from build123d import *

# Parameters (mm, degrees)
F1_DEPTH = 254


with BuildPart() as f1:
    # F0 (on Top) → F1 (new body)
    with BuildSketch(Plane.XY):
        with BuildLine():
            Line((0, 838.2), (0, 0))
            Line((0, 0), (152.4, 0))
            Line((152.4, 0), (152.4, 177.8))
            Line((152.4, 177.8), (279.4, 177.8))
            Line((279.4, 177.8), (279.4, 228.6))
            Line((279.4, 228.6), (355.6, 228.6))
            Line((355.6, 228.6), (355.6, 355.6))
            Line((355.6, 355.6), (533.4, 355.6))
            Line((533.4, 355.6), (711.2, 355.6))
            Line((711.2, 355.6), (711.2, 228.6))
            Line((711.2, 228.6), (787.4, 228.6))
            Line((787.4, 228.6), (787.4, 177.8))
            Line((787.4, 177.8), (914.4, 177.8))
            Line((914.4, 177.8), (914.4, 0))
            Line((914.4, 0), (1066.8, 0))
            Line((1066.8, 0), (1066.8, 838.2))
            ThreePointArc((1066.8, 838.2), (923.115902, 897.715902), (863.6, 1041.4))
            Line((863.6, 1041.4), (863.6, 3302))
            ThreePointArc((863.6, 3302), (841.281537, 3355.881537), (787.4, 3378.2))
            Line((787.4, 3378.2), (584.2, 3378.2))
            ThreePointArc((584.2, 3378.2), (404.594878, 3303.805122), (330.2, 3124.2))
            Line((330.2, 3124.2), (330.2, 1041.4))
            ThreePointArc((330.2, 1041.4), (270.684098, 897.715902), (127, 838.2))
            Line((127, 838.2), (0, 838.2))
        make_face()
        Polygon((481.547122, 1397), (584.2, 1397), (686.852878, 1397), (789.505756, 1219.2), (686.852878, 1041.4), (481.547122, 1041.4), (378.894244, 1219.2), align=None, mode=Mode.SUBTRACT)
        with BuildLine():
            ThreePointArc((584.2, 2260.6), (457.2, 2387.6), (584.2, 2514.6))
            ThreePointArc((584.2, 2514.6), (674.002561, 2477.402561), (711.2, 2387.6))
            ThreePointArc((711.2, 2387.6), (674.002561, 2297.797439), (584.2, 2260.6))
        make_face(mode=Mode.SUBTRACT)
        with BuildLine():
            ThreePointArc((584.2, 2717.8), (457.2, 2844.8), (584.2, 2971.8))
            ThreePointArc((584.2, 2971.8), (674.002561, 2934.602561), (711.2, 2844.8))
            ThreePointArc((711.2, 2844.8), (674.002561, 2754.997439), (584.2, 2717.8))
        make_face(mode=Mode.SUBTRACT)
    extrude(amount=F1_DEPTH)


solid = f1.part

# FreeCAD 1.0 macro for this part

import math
import FreeCAD as App
import Part
import Sketcher
from FreeCAD import Vector
Q = App.Units.Quantity


def add_polygon(sketch, points):
    """Adds a closed chain of lines whose ends are joined by coincident constraints."""
    first, n = sketch.GeometryCount, len(points)
    for a, b in zip(points, points[1:] + points[:1]):
        sketch.addGeometry(Part.LineSegment(App.Vector(*a, 0), App.Vector(*b, 0)), False)
    for i in range(n):
        sketch.addConstraint(Sketcher.Constraint("Coincident", first + i, 2, first + (i + 1) % n, 1))

doc = App.newDocument("Part")
body = doc.addObject("PartDesign::Body", "Body")

sketch1 = body.newObject("Sketcher::SketchObject", "Sketch")
sketch1.AttachmentSupport = (doc.getObject("XY_Plane"), [""])
sketch1.MapMode = "FlatFace"
sketch1.addGeometry(Part.LineSegment(Vector(0, 838, 0), Vector(0, 0, 0)), False)
sketch1.addGeometry(Part.LineSegment(Vector(0, 0, 0), Vector(152, 0, 0)), False)
sketch1.addGeometry(Part.LineSegment(Vector(152, 0, 0), Vector(152, 178, 0)), False)
sketch1.addGeometry(Part.LineSegment(Vector(152, 178, 0), Vector(279, 178, 0)), False)
sketch1.addGeometry(Part.LineSegment(Vector(279, 178, 0), Vector(279, 229, 0)), False)
sketch1.addGeometry(Part.LineSegment(Vector(279, 229, 0), Vector(356, 229, 0)), False)
sketch1.addGeometry(Part.LineSegment(Vector(356, 229, 0), Vector(356, 356, 0)), False)
sketch1.addGeometry(Part.LineSegment(Vector(356, 356, 0), Vector(711, 356, 0)), False)
sketch1.addGeometry(Part.LineSegment(Vector(711, 356, 0), Vector(711, 229, 0)), False)
sketch1.addGeometry(Part.LineSegment(Vector(711, 229, 0), Vector(787, 229, 0)), False)
sketch1.addGeometry(Part.LineSegment(Vector(787, 229, 0), Vector(787, 178, 0)), False)
sketch1.addGeometry(Part.LineSegment(Vector(787, 178, 0), Vector(914, 178, 0)), False)
sketch1.addGeometry(Part.LineSegment(Vector(914, 178, 0), Vector(914, 0, 0)), False)
sketch1.addGeometry(Part.LineSegment(Vector(914, 0, 0), Vector(1067, 0, 0)), False)
sketch1.addGeometry(Part.LineSegment(Vector(1067, 0, 0), Vector(1067, 838, 0)), False)
sketch1.addGeometry(Part.ArcOfCircle(Part.Circle(Vector(1067, 1041, 0), Vector(0, 0, 1), 203), math.radians(180), math.radians(270)), False)
sketch1.addGeometry(Part.LineSegment(Vector(864, 1041, 0), Vector(864, 3302, 0)), False)
sketch1.addGeometry(Part.ArcOfCircle(Part.Circle(Vector(787, 3302, 0), Vector(0, 0, 1), 76), math.radians(0), math.radians(90)), False)
sketch1.addGeometry(Part.LineSegment(Vector(787, 3378, 0), Vector(584, 3378, 0)), False)
sketch1.addGeometry(Part.ArcOfCircle(Part.Circle(Vector(584, 3124, 0), Vector(0, 0, 1), 254), math.radians(90), math.radians(180)), False)
sketch1.addGeometry(Part.LineSegment(Vector(330, 3124, 0), Vector(330, 1041, 0)), False)
sketch1.addGeometry(Part.ArcOfCircle(Part.Circle(Vector(127, 1041, 0), Vector(0, 0, 1), 203), math.radians(-90), math.radians(0)), False)
sketch1.addGeometry(Part.LineSegment(Vector(127, 838, 0), Vector(0, 838, 0)), False)
add_polygon(sketch1, [(379, 1219), (482, 1397), (687, 1397), (790, 1219), (687, 1041), (482, 1041)])
sketch1.addGeometry(Part.ArcOfCircle(Part.Circle(Vector(584, 2845, 0), Vector(0, 0, 1), 127), math.radians(-90), math.radians(0)), False)
sketch1.addGeometry(Part.ArcOfCircle(Part.Circle(Vector(584, 2845, 0), Vector(0, 0, 1), 127), math.radians(90), math.radians(270)), False)
sketch1.addGeometry(Part.ArcOfCircle(Part.Circle(Vector(584, 2845, 0), Vector(0, 0, 1), 127), math.radians(0), math.radians(90)), False)
sketch1.addGeometry(Part.ArcOfCircle(Part.Circle(Vector(584, 2388, 0), Vector(0, 0, 1), 127), math.radians(-90), math.radians(0)), False)
sketch1.addGeometry(Part.ArcOfCircle(Part.Circle(Vector(584, 2388, 0), Vector(0, 0, 1), 127), math.radians(90), math.radians(270)), False)
sketch1.addGeometry(Part.ArcOfCircle(Part.Circle(Vector(584, 2388, 0), Vector(0, 0, 1), 127), math.radians(0), math.radians(90)), False)
sketch1.addConstraint(Sketcher.Constraint("Coincident", 0, 2, 1, 1))
sketch1.addConstraint(Sketcher.Constraint("Coincident", 1, 2, 2, 1))
sketch1.addConstraint(Sketcher.Constraint("Coincident", 2, 2, 3, 1))
sketch1.addConstraint(Sketcher.Constraint("Coincident", 3, 2, 4, 1))
sketch1.addConstraint(Sketcher.Constraint("Coincident", 4, 2, 5, 1))
sketch1.addConstraint(Sketcher.Constraint("Coincident", 5, 2, 6, 1))
sketch1.addConstraint(Sketcher.Constraint("Coincident", 6, 2, 7, 1))
sketch1.addConstraint(Sketcher.Constraint("Coincident", 7, 2, 8, 1))
sketch1.addConstraint(Sketcher.Constraint("Coincident", 8, 2, 9, 1))
sketch1.addConstraint(Sketcher.Constraint("Coincident", 9, 2, 10, 1))
sketch1.addConstraint(Sketcher.Constraint("Coincident", 10, 2, 11, 1))
sketch1.addConstraint(Sketcher.Constraint("Coincident", 11, 2, 12, 1))
sketch1.addConstraint(Sketcher.Constraint("Coincident", 12, 2, 13, 1))
sketch1.addConstraint(Sketcher.Constraint("Coincident", 13, 2, 14, 1))
sketch1.addConstraint(Sketcher.Constraint("Coincident", 14, 2, 15, 2))
sketch1.addConstraint(Sketcher.Constraint("Tangent", 15, 1, 16, 1))
sketch1.addConstraint(Sketcher.Constraint("Tangent", 16, 2, 17, 1))
sketch1.addConstraint(Sketcher.Constraint("Tangent", 17, 2, 18, 1))
sketch1.addConstraint(Sketcher.Constraint("Tangent", 18, 2, 19, 1))
sketch1.addConstraint(Sketcher.Constraint("Tangent", 19, 2, 20, 1))
sketch1.addConstraint(Sketcher.Constraint("Tangent", 20, 2, 21, 2))
sketch1.addConstraint(Sketcher.Constraint("Tangent", 21, 1, 22, 1))
sketch1.addConstraint(Sketcher.Constraint("Coincident", 22, 2, 0, 1))
sketch1.addConstraint(Sketcher.Constraint("Tangent", 29, 1, 30, 2))
sketch1.addConstraint(Sketcher.Constraint("Tangent", 30, 1, 31, 2))
sketch1.addConstraint(Sketcher.Constraint("Tangent", 31, 1, 29, 2))
sketch1.addConstraint(Sketcher.Constraint("Tangent", 32, 1, 33, 2))
sketch1.addConstraint(Sketcher.Constraint("Tangent", 33, 1, 34, 2))
sketch1.addConstraint(Sketcher.Constraint("Tangent", 34, 1, 32, 2))
sketch1.addConstraint(Sketcher.Constraint("Vertical", 0))
sketch1.addConstraint(Sketcher.Constraint("Horizontal", 1))
sketch1.addConstraint(Sketcher.Constraint("Vertical", 2))
sketch1.addConstraint(Sketcher.Constraint("Horizontal", 3))
sketch1.addConstraint(Sketcher.Constraint("Vertical", 4))
sketch1.addConstraint(Sketcher.Constraint("Horizontal", 5))
sketch1.addConstraint(Sketcher.Constraint("Vertical", 6))
sketch1.addConstraint(Sketcher.Constraint("Horizontal", 7))
sketch1.addConstraint(Sketcher.Constraint("Vertical", 8))
sketch1.addConstraint(Sketcher.Constraint("Horizontal", 9))
sketch1.addConstraint(Sketcher.Constraint("Vertical", 10))
sketch1.addConstraint(Sketcher.Constraint("Horizontal", 11))
sketch1.addConstraint(Sketcher.Constraint("Vertical", 12))
sketch1.addConstraint(Sketcher.Constraint("Horizontal", 13))
sketch1.addConstraint(Sketcher.Constraint("Vertical", 14))
sketch1.addConstraint(Sketcher.Constraint("Vertical", 16))
sketch1.addConstraint(Sketcher.Constraint("Horizontal", 18))
sketch1.addConstraint(Sketcher.Constraint("Vertical", 20))
sketch1.addConstraint(Sketcher.Constraint("Horizontal", 22))
sketch1.addConstraint(Sketcher.Constraint("Horizontal", 24))
sketch1.addConstraint(Sketcher.Constraint("Horizontal", 27))
sketch1.addConstraint(Sketcher.Constraint("Coincident", 0, 2, -1, 1))
sketch1.addConstraint(Sketcher.Constraint("Equal", 15, 21))
sketch1.addConstraint(Sketcher.Constraint("Equal", 31, 32))
sketch1.addConstraint(Sketcher.Constraint("PointOnObject", 12, 2, -1))
sketch1.addConstraint(Sketcher.Constraint("Parallel", 23, 26))
sketch1.addConstraint(Sketcher.Constraint("Parallel", 25, 28))
sketch1.addConstraint(Sketcher.Constraint("Horizontal", 15, 3, 21, 3))
sketch1.addConstraint(Sketcher.Constraint("Horizontal", 5, 2, 8, 2))
sketch1.addConstraint(Sketcher.Constraint("Horizontal", 3, 2, 10, 2))
sketch1.addConstraint(Sketcher.Constraint("Horizontal", 20, 2, 26, 2))
sketch1.addConstraint(Sketcher.Constraint("Horizontal", 25, 2, 28, 2))
sketch1.addConstraint(Sketcher.Constraint("Horizontal", 30, 3, 31, 1))
sketch1.addConstraint(Sketcher.Constraint("Horizontal", 33, 3, 34, 1))
sketch1.addConstraint(Sketcher.Constraint("Vertical", 19, 3, 30, 3))
sketch1.addConstraint(Sketcher.Constraint("Vertical", 31, 3, 32, 3))
sketch1.addConstraint(Sketcher.Constraint("Vertical", 17, 3, 9, 2))
sketch1.addConstraint(Sketcher.Constraint("Vertical", 15, 3, 13, 2))
sketch1.addConstraint(Sketcher.Constraint("Vertical", 24, 2, 26, 2))
sketch1.addConstraint(Sketcher.Constraint("Vertical", 23, 2, 27, 2))
sketch1.addConstraint(Sketcher.Constraint("Vertical", 18, 2, 29, 1))
sketch1.addConstraint(Sketcher.Constraint("Vertical", 29, 1, 30, 1))
sketch1.addConstraint(Sketcher.Constraint("Vertical", 8, 2, 31, 1))
sketch1.addConstraint(Sketcher.Constraint("Vertical", 30, 1, 32, 1))
sketch1.addConstraint(Sketcher.Constraint("Vertical", 32, 1, 33, 1))
sketch1.addConstraint(Sketcher.Constraint("Equal", 5, 9))
sketch1.addConstraint(Sketcher.Constraint("Equal", 3, 11))
sketch1.addConstraint(Sketcher.Constraint("Equal", 1, 13))
sketch1.addConstraint(Sketcher.Constraint("Equal", 11, 22))
sketch1.addConstraint(Sketcher.Constraint("Equal", 22, 6))
sketch1.addConstraint(Sketcher.Constraint("Radius", 15, Q("8 in")))
sketch1.addConstraint(Sketcher.Constraint("Radius", 17, Q("3 in")))
sketch1.addConstraint(Sketcher.Constraint("Radius", 19, Q("10.0000001 in")))
sketch1.addConstraint(Sketcher.Constraint("Radius", 29, Q("5 in")))
sketch1.addConstraint(Sketcher.Constraint("DistanceX", 1, 1, 1, 2, Q("6 in")))
sketch1.addConstraint(Sketcher.Constraint("DistanceX", 5, 1, 5, 2, Q("3 in")))
sketch1.addConstraint(Sketcher.Constraint("DistanceY", 0, 2, 0, 1, Q("33 in")))
sketch1.addConstraint(Sketcher.Constraint("DistanceY", 2, 1, 2, 2, Q("7 in")))
sketch1.addConstraint(Sketcher.Constraint("DistanceY", 4, 1, 4, 2, Q("2 in")))
sketch1.addConstraint(Sketcher.Constraint("DistanceY", 16, 1, 16, 2, Q("89 in")))
sketch1.addConstraint(Sketcher.Constraint("DistanceY", -1, 1, 29, 3, Q("112 in")))
sketch1.addConstraint(Sketcher.Constraint("DistanceY", -1, 1, 32, 3, Q("94 in")))
sketch1.addConstraint(Sketcher.Constraint("DistanceY", -1, 1, 23, 2, Q("55 in")))
sketch1.addConstraint(Sketcher.Constraint("Angle", 23, Q("60 deg")))
sketch1.addConstraint(Sketcher.Constraint("DistanceX", 24, 1, 24, 2, 205.305756))
sketch1.addConstraint(Sketcher.Constraint("DistanceX", -1, 1, 23, 2, 481.547122))
pad1 = body.newObject("PartDesign::Pad", "Pad")
pad1.Profile = sketch1
pad1.Length = Q("10 in")

doc.recompute()
